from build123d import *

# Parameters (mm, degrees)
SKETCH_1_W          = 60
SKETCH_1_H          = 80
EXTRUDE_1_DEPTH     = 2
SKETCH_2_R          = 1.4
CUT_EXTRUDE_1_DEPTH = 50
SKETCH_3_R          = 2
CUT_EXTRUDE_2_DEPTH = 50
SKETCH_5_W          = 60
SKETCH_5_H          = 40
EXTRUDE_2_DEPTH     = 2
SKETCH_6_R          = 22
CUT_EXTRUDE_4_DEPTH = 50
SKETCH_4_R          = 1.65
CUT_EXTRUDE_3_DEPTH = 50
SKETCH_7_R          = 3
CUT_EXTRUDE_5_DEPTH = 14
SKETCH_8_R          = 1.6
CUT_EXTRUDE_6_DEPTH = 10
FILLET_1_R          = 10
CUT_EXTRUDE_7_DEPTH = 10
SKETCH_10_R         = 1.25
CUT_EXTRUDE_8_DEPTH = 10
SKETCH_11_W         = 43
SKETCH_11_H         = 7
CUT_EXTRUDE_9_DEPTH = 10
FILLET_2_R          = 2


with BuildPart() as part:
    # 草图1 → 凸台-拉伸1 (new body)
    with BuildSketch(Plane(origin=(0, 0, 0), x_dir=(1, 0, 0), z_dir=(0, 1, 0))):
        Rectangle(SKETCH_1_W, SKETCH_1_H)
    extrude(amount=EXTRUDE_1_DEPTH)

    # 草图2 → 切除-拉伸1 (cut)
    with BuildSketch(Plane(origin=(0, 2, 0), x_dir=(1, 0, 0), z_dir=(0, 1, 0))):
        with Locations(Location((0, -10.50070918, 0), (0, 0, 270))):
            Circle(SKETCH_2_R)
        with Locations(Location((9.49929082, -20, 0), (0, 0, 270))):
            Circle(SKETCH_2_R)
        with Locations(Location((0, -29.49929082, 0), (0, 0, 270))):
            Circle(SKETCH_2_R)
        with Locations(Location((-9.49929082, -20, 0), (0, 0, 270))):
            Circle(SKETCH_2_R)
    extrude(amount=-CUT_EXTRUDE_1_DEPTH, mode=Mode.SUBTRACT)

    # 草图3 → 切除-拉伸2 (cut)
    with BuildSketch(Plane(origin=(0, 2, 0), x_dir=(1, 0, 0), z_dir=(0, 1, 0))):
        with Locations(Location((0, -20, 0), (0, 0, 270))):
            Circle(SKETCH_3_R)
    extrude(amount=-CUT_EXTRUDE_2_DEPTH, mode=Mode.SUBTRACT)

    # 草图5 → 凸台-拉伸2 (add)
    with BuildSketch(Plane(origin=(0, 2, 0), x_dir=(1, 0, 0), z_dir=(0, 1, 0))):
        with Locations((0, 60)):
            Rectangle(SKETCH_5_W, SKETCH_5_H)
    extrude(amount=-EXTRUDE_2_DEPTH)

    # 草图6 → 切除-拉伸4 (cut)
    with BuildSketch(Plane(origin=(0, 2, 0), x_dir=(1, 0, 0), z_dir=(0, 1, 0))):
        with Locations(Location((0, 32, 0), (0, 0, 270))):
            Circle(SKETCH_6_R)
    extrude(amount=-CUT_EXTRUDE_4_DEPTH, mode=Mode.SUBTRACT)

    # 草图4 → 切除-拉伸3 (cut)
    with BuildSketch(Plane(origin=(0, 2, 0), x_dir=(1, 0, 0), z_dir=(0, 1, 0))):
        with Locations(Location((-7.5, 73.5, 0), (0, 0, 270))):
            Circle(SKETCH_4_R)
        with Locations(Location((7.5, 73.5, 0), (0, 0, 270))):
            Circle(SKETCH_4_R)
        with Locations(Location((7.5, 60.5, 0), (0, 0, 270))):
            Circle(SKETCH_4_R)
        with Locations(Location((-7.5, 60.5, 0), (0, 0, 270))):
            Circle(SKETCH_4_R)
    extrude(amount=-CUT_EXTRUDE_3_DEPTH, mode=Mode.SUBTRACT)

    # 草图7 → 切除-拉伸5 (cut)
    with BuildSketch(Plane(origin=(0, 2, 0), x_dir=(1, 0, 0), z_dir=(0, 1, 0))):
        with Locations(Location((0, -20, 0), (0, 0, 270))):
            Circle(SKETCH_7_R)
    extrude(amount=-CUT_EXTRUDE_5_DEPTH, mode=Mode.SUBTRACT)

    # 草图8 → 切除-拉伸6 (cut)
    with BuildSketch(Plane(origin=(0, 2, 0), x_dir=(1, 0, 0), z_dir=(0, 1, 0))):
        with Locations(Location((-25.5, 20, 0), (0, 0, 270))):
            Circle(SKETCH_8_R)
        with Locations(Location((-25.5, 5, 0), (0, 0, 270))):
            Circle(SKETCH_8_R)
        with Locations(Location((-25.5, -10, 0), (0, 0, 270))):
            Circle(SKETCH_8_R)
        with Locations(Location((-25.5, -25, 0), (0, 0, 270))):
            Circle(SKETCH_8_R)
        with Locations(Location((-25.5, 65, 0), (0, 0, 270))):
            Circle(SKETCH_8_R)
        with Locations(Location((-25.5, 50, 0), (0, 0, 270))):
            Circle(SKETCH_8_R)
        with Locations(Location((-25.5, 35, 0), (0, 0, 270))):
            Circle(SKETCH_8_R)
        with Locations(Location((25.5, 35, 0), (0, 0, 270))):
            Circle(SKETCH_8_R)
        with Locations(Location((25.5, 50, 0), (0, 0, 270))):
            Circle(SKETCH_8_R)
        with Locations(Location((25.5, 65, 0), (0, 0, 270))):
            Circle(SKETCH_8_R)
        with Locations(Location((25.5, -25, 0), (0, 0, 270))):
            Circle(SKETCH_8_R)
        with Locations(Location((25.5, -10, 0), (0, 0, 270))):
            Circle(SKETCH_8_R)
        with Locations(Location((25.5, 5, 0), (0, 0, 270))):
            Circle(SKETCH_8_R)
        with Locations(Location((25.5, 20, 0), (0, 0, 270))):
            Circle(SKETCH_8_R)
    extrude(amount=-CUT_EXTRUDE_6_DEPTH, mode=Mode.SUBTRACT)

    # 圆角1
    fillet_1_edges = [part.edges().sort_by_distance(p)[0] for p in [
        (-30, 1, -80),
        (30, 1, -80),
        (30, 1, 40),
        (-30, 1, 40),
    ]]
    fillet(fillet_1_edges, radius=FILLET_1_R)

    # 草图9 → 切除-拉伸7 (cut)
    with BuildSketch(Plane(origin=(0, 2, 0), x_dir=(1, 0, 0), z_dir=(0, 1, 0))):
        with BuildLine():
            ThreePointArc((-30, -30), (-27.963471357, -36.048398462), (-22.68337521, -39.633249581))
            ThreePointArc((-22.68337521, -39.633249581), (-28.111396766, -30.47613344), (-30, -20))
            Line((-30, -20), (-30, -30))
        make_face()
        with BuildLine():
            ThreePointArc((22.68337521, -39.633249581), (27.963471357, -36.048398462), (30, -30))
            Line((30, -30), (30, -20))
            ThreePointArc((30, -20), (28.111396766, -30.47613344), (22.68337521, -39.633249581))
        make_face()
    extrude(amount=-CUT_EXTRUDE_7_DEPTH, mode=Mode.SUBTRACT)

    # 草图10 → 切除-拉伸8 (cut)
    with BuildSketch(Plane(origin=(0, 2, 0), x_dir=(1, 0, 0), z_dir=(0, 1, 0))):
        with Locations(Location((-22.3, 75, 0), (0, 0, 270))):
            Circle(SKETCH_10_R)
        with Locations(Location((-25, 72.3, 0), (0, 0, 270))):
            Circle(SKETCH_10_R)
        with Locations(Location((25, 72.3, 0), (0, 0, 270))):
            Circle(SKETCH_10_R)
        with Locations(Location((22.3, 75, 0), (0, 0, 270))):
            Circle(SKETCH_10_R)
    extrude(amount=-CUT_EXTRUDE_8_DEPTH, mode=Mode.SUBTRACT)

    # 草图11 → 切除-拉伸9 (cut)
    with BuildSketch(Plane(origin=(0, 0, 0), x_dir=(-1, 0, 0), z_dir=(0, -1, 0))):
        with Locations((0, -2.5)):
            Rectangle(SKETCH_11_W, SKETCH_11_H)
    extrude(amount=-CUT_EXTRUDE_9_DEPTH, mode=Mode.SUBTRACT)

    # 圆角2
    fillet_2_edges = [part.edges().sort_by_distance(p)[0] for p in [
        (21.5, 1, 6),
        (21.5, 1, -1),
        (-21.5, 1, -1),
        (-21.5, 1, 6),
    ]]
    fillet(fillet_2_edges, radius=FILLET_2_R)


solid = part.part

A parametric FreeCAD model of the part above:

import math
import FreeCAD as App
import Part
import Sketcher
from FreeCAD import Vector
Q = App.Units.Quantity


def edges_at(feature, points):
    """Names of the edges that pass closest to the given points."""
    edges = feature.Shape.Edges
    near = lambda p: min(range(len(edges)), key=lambda i: edges[i].distToShape(Part.Vertex(*p))[0])
    return sorted({f"Edge{near(p) + 1}" for p in points})


def add_polygon(sketch, points):
    """Adds a closed chain of lines whose ends are joined by coincident constraints."""
    first, n = sketch.GeometryCount, len(points)
    for a, b in zip(points, points[1:] + points[:1]):
        sketch.addGeometry(Part.LineSegment(App.Vector(*a, 0), App.Vector(*b, 0)), False)
    for i in range(n):
        sketch.addConstraint(Sketcher.Constraint("Coincident", first + i, 2, first + (i + 1) % n, 1))

doc = App.newDocument("Part")
params = doc.addObject("Spreadsheet::Sheet", "Params")
for row, (alias, value) in enumerate([
    ("sketch1_width", "60 mm"),
    ("sketch1_height", "80 mm"),
    ("pad1_length", "2 mm"),
    ("sketch2_diameter", "2.8 mm"),
    ("pocket1_length", "50 mm"),
    ("sketch3_diameter", "4 mm"),
    ("pocket2_length", "50 mm"),
    ("sketch4_width", "60 mm"),
    ("sketch4_height", "40 mm"),
    ("pad2_length", "2 mm"),
    ("sketch5_diameter", "44 mm"),
    ("pocket3_length", "50 mm"),
    ("sketch6_diameter", "3.3 mm"),
    ("pocket4_length", "50 mm"),
    ("sketch7_diameter", "6 mm"),
    ("pocket5_length", "14 mm"),
    ("sketch8_diameter", "3.2 mm"),
    ("pocket6_length", "10 mm"),
    ("fillet_radius", "10 mm"),
    ("sketch9_radius", "10 mm"),
    ("sketch9_radius2", "30 mm"),
    ("sketch9_height", "10 mm"),
    ("pocket7_length", "10 mm"),
    ("sketch10_diameter", "2.5 mm"),
    ("pocket8_length", "10 mm"),
    ("sketch11_width", "43 mm"),
    ("sketch11_height", "7 mm"),
    ("pocket9_length", "10 mm"),
    ("fillet2_radius", "2 mm"),
], start=1):
    params.set(f"A{row}", alias)
    params.set(f"B{row}", "=" + value)
    params.setAlias(f"B{row}", alias)

body = doc.addObject("PartDesign::Body", "Body")

# Sketch on XZ plane
sketch1 = body.newObject("Sketcher::SketchObject", "Sketch")
sketch1.AttachmentSupport = (doc.getObject("XZ_Plane"), [""])
sketch1.MapMode = "FlatFace"
add_polygon(sketch1, [(-30, -40), (-30, 40), (30, 40), (30, -40)])  # lines 0-3
sketch1.addConstraint(Sketcher.Constraint("Vertical", 0))
sketch1.addConstraint(Sketcher.Constraint("Horizontal", 1))
sketch1.addConstraint(Sketcher.Constraint("Vertical", 2))
sketch1.addConstraint(Sketcher.Constraint("Horizontal", 3))
sketch1.addConstraint(Sketcher.Constraint("Symmetric", 0, 2, 2, 2, -1, 1))
sketch1.addConstraint(Sketcher.Constraint("DistanceX", 1, 1, 1, 2, Q("60 mm")))
sketch1.addConstraint(Sketcher.Constraint("DistanceY", 0, 1, 0, 2, Q("80 mm")))
sketch1.setExpression("Constraints[9]", "Params.sketch1_width")
sketch1.setExpression("Constraints[10]", "Params.sketch1_height")
pad1 = body.newObject("PartDesign::Pad", "Pad")
pad1.Profile = sketch1
pad1.setExpression("Length", "Params.pad1_length")
pad1.Reversed = True

# Sketch on XZ plane
sketch2 = body.newObject("Sketcher::SketchObject", "Sketch001")
sketch2.AttachmentSupport = (doc.getObject("XZ_Plane"), [""])
sketch2.MapMode = "FlatFace"
sketch2.AttachmentOffset = App.Placement(Vector(0, 0, -2), App.Rotation())
sketch2.addGeometry(Part.Circle(Vector(0, 10.500709, 0), Vector(0, 0, 1), 1.4), False)
sketch2.addGeometry(Part.Circle(Vector(9.499291, 20, 0), Vector(0, 0, 1), 1.4), False)
sketch2.addGeometry(Part.Circle(Vector(0, 29.499291, 0), Vector(0, 0, 1), 1.4), False)
sketch2.addGeometry(Part.Circle(Vector(-9.499291, 20, 0), Vector(0, 0, 1), 1.4), False)
sketch2.addConstraint(Sketcher.Constraint("Equal", 0, 1))
sketch2.addConstraint(Sketcher.Constraint("Equal", 1, 2))
sketch2.addConstraint(Sketcher.Constraint("Equal", 2, 3))
sketch2.addConstraint(Sketcher.Constraint("Symmetric", 1, 3, 3, 3, -2))
sketch2.addConstraint(Sketcher.Constraint("PointOnObject", 0, 3, -2))
sketch2.addConstraint(Sketcher.Constraint("PointOnObject", 2, 3, -2))
sketch2.addConstraint(Sketcher.Constraint("Diameter", 0, Q("2.8 mm")))
sketch2.addConstraint(Sketcher.Constraint("DistanceY", -1, 1, 1, 3, Q("20 mm")))
sketch2.addConstraint(Sketcher.Constraint("DistanceY", -1, 1, 0, 3, Q("10.500709 mm")))
sketch2.addConstraint(Sketcher.Constraint("DistanceX", -1, 1, 1, 3, Q("9.499291 mm")))
sketch2.addConstraint(Sketcher.Constraint("DistanceY", -1, 1, 2, 3, Q("29.499291 mm")))
sketch2.setExpression("Constraints[6]", "Params.sketch2_diameter")
pocket1 = body.newObject("PartDesign::Pocket", "Pocket")
pocket1.Profile = sketch2
pocket1.setExpression("Length", "Params.pocket1_length")
pocket1.Reversed = True

# Sketch on XZ plane
sketch3 = body.newObject("Sketcher::SketchObject", "Sketch002")
sketch3.AttachmentSupport = (doc.getObject("XZ_Plane"), [""])
sketch3.MapMode = "FlatFace"
sketch3.AttachmentOffset = App.Placement(Vector(0, 0, -2), App.Rotation())
sketch3.addGeometry(Part.Circle(Vector(0, 20, 0), Vector(0, 0, 1), 2), False)
sketch3.addConstraint(Sketcher.Constraint("PointOnObject", 0, 3, -2))
sketch3.addConstraint(Sketcher.Constraint("Diameter", 0, Q("4 mm")))
sketch3.addConstraint(Sketcher.Constraint("DistanceY", -1, 1, 0, 3, Q("20 mm")))
sketch3.setExpression("Constraints[1]", "Params.sketch3_diameter")
pocket2 = body.newObject("PartDesign::Pocket", "Pocket001")
pocket2.Profile = sketch3
pocket2.setExpression("Length", "Params.pocket2_length")
pocket2.Reversed = True

# Sketch on XZ plane
sketch4 = body.newObject("Sketcher::SketchObject", "Sketch003")
sketch4.AttachmentSupport = (doc.getObject("XZ_Plane"), [""])
sketch4.MapMode = "FlatFace"
sketch4.AttachmentOffset = App.Placement(Vector(0, 0, -2), App.Rotation())
add_polygon(sketch4, [(-30, -80), (-30, -40), (30, -40), (30, -80)])  # lines 0-3
sketch4.addConstraint(Sketcher.Constraint("Vertical", 0))
sketch4.addConstraint(Sketcher.Constraint("Horizontal", 1))
sketch4.addConstraint(Sketcher.Constraint("Vertical", 2))
sketch4.addConstraint(Sketcher.Constraint("Horizontal", 3))
sketch4.addConstraint(Sketcher.Constraint("DistanceX", 1, 1, 1, 2, Q("60 mm")))
sketch4.addConstraint(Sketcher.Constraint("DistanceY", 0, 1, 0, 2, Q("40 mm")))
sketch4.addConstraint(Sketcher.Constraint("DistanceX", 0, 2, -1, 1, Q("30 mm")))
sketch4.addConstraint(Sketcher.Constraint("DistanceY", 0, 2, -1, 1, Q("40 mm")))
sketch4.setExpression("Constraints[8]", "Params.sketch4_width")
sketch4.setExpression("Constraints[9]", "Params.sketch4_height")
pad2 = body.newObject("PartDesign::Pad", "Pad001")
pad2.Profile = sketch4
pad2.setExpression("Length", "Params.pad2_length")

# Sketch on XZ plane
sketch5 = body.newObject("Sketcher::SketchObject", "Sketch004")
sketch5.AttachmentSupport = (doc.getObject("XZ_Plane"), [""])
sketch5.MapMode = "FlatFace"
sketch5.AttachmentOffset = App.Placement(Vector(0, 0, -2), App.Rotation())
sketch5.addGeometry(Part.Circle(Vector(0, -32, 0), Vector(0, 0, 1), 22), False)
sketch5.addConstraint(Sketcher.Constraint("PointOnObject", 0, 3, -2))
sketch5.addConstraint(Sketcher.Constraint("Diameter", 0, Q("44 mm")))
sketch5.addConstraint(Sketcher.Constraint("DistanceY", 0, 3, -1, 1, Q("32 mm")))
sketch5.setExpression("Constraints[1]", "Params.sketch5_diameter")
pocket3 = body.newObject("PartDesign::Pocket", "Pocket002")
pocket3.Profile = sketch5
pocket3.setExpression("Length", "Params.pocket3_length")
pocket3.Reversed = True

# Sketch on XZ plane
sketch6 = body.newObject("Sketcher::SketchObject", "Sketch005")
sketch6.AttachmentSupport = (doc.getObject("XZ_Plane"), [""])
sketch6.MapMode = "FlatFace"
sketch6.AttachmentOffset = App.Placement(Vector(0, 0, -2), App.Rotation())
sketch6.addGeometry(Part.Circle(Vector(-7.5, -73.5, 0), Vector(0, 0, 1), 1.65), False)
sketch6.addGeometry(Part.Circle(Vector(7.5, -73.5, 0), Vector(0, 0, 1), 1.65), False)
sketch6.addGeometry(Part.Circle(Vector(7.5, -60.5, 0), Vector(0, 0, 1), 1.65), False)
sketch6.addGeometry(Part.Circle(Vector(-7.5, -60.5, 0), Vector(0, 0, 1), 1.65), False)
sketch6.addConstraint(Sketcher.Constraint("Equal", 0, 1))
sketch6.addConstraint(Sketcher.Constraint("Equal", 1, 2))
sketch6.addConstraint(Sketcher.Constraint("Equal", 2, 3))
sketch6.addConstraint(Sketcher.Constraint("Symmetric", 0, 3, 1, 3, -2))
sketch6.addConstraint(Sketcher.Constraint("Symmetric", 2, 3, 3, 3, -2))
sketch6.addConstraint(Sketcher.Constraint("Vertical", 1, 3, 2, 3))
sketch6.addConstraint(Sketcher.Constraint("Diameter", 0, Q("3.3 mm")))
sketch6.addConstraint(Sketcher.Constraint("DistanceX", 0, 3, 1, 3, Q("15 mm")))
sketch6.addConstraint(Sketcher.Constraint("DistanceY", 1, 3, 2, 3, Q("13 mm")))
sketch6.addConstraint(Sketcher.Constraint("DistanceY", 0, 3, -1, 1, Q("73.5 mm")))
sketch6.setExpression("Constraints[6]", "Params.sketch6_diameter")
pocket4 = body.newObject("PartDesign::Pocket", "Pocket003")
pocket4.Profile = sketch6
pocket4.setExpression("Length", "Params.pocket4_length")
pocket4.Reversed = True

# Sketch on XZ plane
sketch7 = body.newObject("Sketcher::SketchObject", "Sketch006")
sketch7.AttachmentSupport = (doc.getObject("XZ_Plane"), [""])
sketch7.MapMode = "FlatFace"
sketch7.AttachmentOffset = App.Placement(Vector(0, 0, -2), App.Rotation())
sketch7.addGeometry(Part.Circle(Vector(0, 20, 0), Vector(0, 0, 1), 3), False)
sketch7.addConstraint(Sketcher.Constraint("PointOnObject", 0, 3, -2))
sketch7.addConstraint(Sketcher.Constraint("Diameter", 0, Q("6 mm")))
sketch7.addConstraint(Sketcher.Constraint("DistanceY", -1, 1, 0, 3, Q("20 mm")))
sketch7.setExpression("Constraints[1]", "Params.sketch7_diameter")
pocket5 = body.newObject("PartDesign::Pocket", "Pocket004")
pocket5.Profile = sketch7
pocket5.setExpression("Length", "Params.pocket5_length")
pocket5.Reversed = True

# Sketch on XZ plane
sketch8 = body.newObject("Sketcher::SketchObject", "Sketch007")
sketch8.AttachmentSupport = (doc.getObject("XZ_Plane"), [""])
sketch8.MapMode = "FlatFace"
sketch8.AttachmentOffset = App.Placement(Vector(0, 0, -2), App.Rotation())
sketch8.addGeometry(Part.Circle(Vector(-25.5, -20, 0), Vector(0, 0, 1), 1.6), False)
sketch8.addGeometry(Part.Circle(Vector(-25.5, -5, 0), Vector(0, 0, 1), 1.6), False)
sketch8.addGeometry(Part.Circle(Vector(-25.5, 10, 0), Vector(0, 0, 1), 1.6), False)
sketch8.addGeometry(Part.Circle(Vector(-25.5, 25, 0), Vector(0, 0, 1), 1.6), False)
sketch8.addGeometry(Part.Circle(Vector(-25.5, -65, 0), Vector(0, 0, 1), 1.6), False)
sketch8.addGeometry(Part.Circle(Vector(-25.5, -50, 0), Vector(0, 0, 1), 1.6), False)
sketch8.addGeometry(Part.Circle(Vector(-25.5, -35, 0), Vector(0, 0, 1), 1.6), False)
sketch8.addGeometry(Part.Circle(Vector(25.5, -35, 0), Vector(0, 0, 1), 1.6), False)
sketch8.addGeometry(Part.Circle(Vector(25.5, -50, 0), Vector(0, 0, 1), 1.6), False)
sketch8.addGeometry(Part.Circle(Vector(25.5, -65, 0), Vector(0, 0, 1), 1.6), False)
sketch8.addGeometry(Part.Circle(Vector(25.5, 25, 0), Vector(0, 0, 1), 1.6), False)
sketch8.addGeometry(Part.Circle(Vector(25.5, 10, 0), Vector(0, 0, 1), 1.6), False)
sketch8.addGeometry(Part.Circle(Vector(25.5, -5, 0), Vector(0, 0, 1), 1.6), False)
sketch8.addGeometry(Part.Circle(Vector(25.5, -20, 0), Vector(0, 0, 1), 1.6), False)
sketch8.addConstraint(Sketcher.Constraint("Equal", 0, 1))
sketch8.addConstraint(Sketcher.Constraint("Equal", 1, 2))
sketch8.addConstraint(Sketcher.Constraint("Equal", 2, 3))
sketch8.addConstraint(Sketcher.Constraint("Equal", 3, 4))
sketch8.addConstraint(Sketcher.Constraint("Equal", 4, 5))
sketch8.addConstraint(Sketcher.Constraint("Equal", 5, 6))
sketch8.addConstraint(Sketcher.Constraint("Equal", 6, 7))
sketch8.addConstraint(Sketcher.Constraint("Equal", 7, 8))
sketch8.addConstraint(Sketcher.Constraint("Equal", 8, 9))
sketch8.addConstraint(Sketcher.Constraint("Equal", 9, 10))
sketch8.addConstraint(Sketcher.Constraint("Equal", 10, 11))
sketch8.addConstraint(Sketcher.Constraint("Equal", 11, 12))
sketch8.addConstraint(Sketcher.Constraint("Equal", 12, 13))
sketch8.addConstraint(Sketcher.Constraint("Symmetric", 6, 3, 7, 3, -2))
sketch8.addConstraint(Sketcher.Constraint("Symmetric", 5, 3, 8, 3, -2))
sketch8.addConstraint(Sketcher.Constraint("Symmetric", 4, 3, 9, 3, -2))
sketch8.addConstraint(Sketcher.Constraint("Symmetric", 3, 3, 10, 3, -2))
sketch8.addConstraint(Sketcher.Constraint("Symmetric", 2, 3, 11, 3, -2))
sketch8.addConstraint(Sketcher.Constraint("Symmetric", 1, 3, 12, 3, -2))
sketch8.addConstraint(Sketcher.Constraint("Symmetric", 0, 3, 13, 3, -2))
sketch8.addConstraint(Sketcher.Constraint("Vertical", 0, 3, 1, 3))
sketch8.addConstraint(Sketcher.Constraint("Vertical", 1, 3, 2, 3))
sketch8.addConstraint(Sketcher.Constraint("Vertical", 2, 3, 3, 3))
sketch8.addConstraint(Sketcher.Constraint("Vertical", 3, 3, 4, 3))
sketch8.addConstraint(Sketcher.Constraint("Vertical", 4, 3, 5, 3))
sketch8.addConstraint(Sketcher.Constraint("Vertical", 5, 3, 6, 3))
sketch8.addConstraint(Sketcher.Constraint("Diameter", 0, Q("3.2 mm")))
sketch8.addConstraint(Sketcher.Constraint("DistanceY", 0, 3, -1, 1, Q("20 mm")))
sketch8.addConstraint(Sketcher.Constraint("DistanceY", 1, 3, -1, 1, Q("5 mm")))
sketch8.addConstraint(Sketcher.Constraint("DistanceY", -1, 1, 2, 3, Q("10 mm")))
sketch8.addConstraint(Sketcher.Constraint("DistanceY", -1, 1, 3, 3, Q("25 mm")))
sketch8.addConstraint(Sketcher.Constraint("DistanceY", 4, 3, -1, 1, Q("65 mm")))
sketch8.addConstraint(Sketcher.Constraint("DistanceY", 5, 3, -1, 1, Q("50 mm")))
sketch8.addConstraint(Sketcher.Constraint("DistanceY", 6, 3, -1, 1, Q("35 mm")))
sketch8.addConstraint(Sketcher.Constraint("DistanceX", 6, 3, 7, 3, Q("51 mm")))
sketch8.setExpression("Constraints[26]", "Params.sketch8_diameter")
pocket6 = body.newObject("PartDesign::Pocket", "Pocket005")
pocket6.Profile = sketch8
pocket6.setExpression("Length", "Params.pocket6_length")
pocket6.Reversed = True
doc.recompute()

fillet = body.newObject("PartDesign::Fillet", "Fillet")
fillet.Base = (pocket6, edges_at(pocket6, [
    (-30, 1, -80),
    (30, 1, -80),
    (30, 1, 40),
    (-30, 1, 40),
]))
fillet.setExpression("Radius", "Params.fillet_radius")

# Sketch on XZ plane
sketch9 = body.newObject("Sketcher::SketchObject", "Sketch008")
sketch9.AttachmentSupport = (doc.getObject("XZ_Plane"), [""])
sketch9.MapMode = "FlatFace"
sketch9.AttachmentOffset = App.Placement(Vector(0, 0, -2), App.Rotation())
sketch9.addGeometry(Part.ArcOfCircle(Part.Circle(Vector(-20, 30, 0), Vector(0, 0, 1), 10), math.radians(105.565364), math.radians(180)), False)
sketch9.addGeometry(Part.ArcOfCircle(Part.Circle(Vector(0, 20, 0), Vector(0, 0, 1), 30), math.radians(139.122673), math.radians(180)), False)
sketch9.addGeometry(Part.LineSegment(Vector(-30, 20, 0), Vector(-30, 30, 0)), False)
sketch9.addGeometry(Part.ArcOfCircle(Part.Circle(Vector(20, 30, 0), Vector(0, 0, 1), 10), math.radians(0), math.radians(74.434636)), False)
sketch9.addGeometry(Part.LineSegment(Vector(30, 30, 0), Vector(30, 20, 0)), False)
sketch9.addGeometry(Part.ArcOfCircle(Part.Circle(Vector(0, 20, 0), Vector(0, 0, 1), 30), math.radians(0), math.radians(40.877327)), False)
sketch9.addConstraint(Sketcher.Constraint("Coincident", 0, 1, 1, 1))
sketch9.addConstraint(Sketcher.Constraint("Tangent", 1, 2, 2, 1))
sketch9.addConstraint(Sketcher.Constraint("Tangent", 2, 2, 0, 2))
sketch9.addConstraint(Sketcher.Constraint("Tangent", 3, 1, 4, 1))
sketch9.addConstraint(Sketcher.Constraint("Tangent", 4, 2, 5, 1))
sketch9.addConstraint(Sketcher.Constraint("Coincident", 5, 2, 3, 2))
sketch9.addConstraint(Sketcher.Constraint("Vertical", 2))
sketch9.addConstraint(Sketcher.Constraint("Vertical", 4))
sketch9.addConstraint(Sketcher.Constraint("Coincident", 5, 3, 1, 3))
sketch9.addConstraint(Sketcher.Constraint("Equal", 0, 3))
sketch9.addConstraint(Sketcher.Constraint("Equal", 1, 5))
sketch9.addConstraint(Sketcher.Constraint("Symmetric", 0, 3, 3, 3, -2))
sketch9.addConstraint(Sketcher.Constraint("Radius", 0, Q("10 mm")))
sketch9.addConstraint(Sketcher.Constraint("Radius", 1, Q("30 mm")))
sketch9.addConstraint(Sketcher.Constraint("DistanceY", 2, 1, 2, 2, Q("10 mm")))
sketch9.addConstraint(Sketcher.Constraint("DistanceY", -1, 1, 0, 3, Q("30 mm")))
sketch9.setExpression("Constraints[12]", "Params.sketch9_radius")
sketch9.setExpression("Constraints[13]", "Params.sketch9_radius2")
sketch9.setExpression("Constraints[14]", "Params.sketch9_height")
pocket7 = body.newObject("PartDesign::Pocket", "Pocket006")
pocket7.Profile = sketch9
pocket7.setExpression("Length", "Params.pocket7_length")
pocket7.Reversed = True

# Sketch on XZ plane
sketch10 = body.newObject("Sketcher::SketchObject", "Sketch009")
sketch10.AttachmentSupport = (doc.getObject("XZ_Plane"), [""])
sketch10.MapMode = "FlatFace"
sketch10.AttachmentOffset = App.Placement(Vector(0, 0, -2), App.Rotation())
sketch10.addGeometry(Part.Circle(Vector(-22.3, -75, 0), Vector(0, 0, 1), 1.25), False)
sketch10.addGeometry(Part.Circle(Vector(-25, -72.3, 0), Vector(0, 0, 1), 1.25), False)
sketch10.addGeometry(Part.Circle(Vector(25, -72.3, 0), Vector(0, 0, 1), 1.25), False)
sketch10.addGeometry(Part.Circle(Vector(22.3, -75, 0), Vector(0, 0, 1), 1.25), False)
sketch10.addConstraint(Sketcher.Constraint("Equal", 0, 1))
sketch10.addConstraint(Sketcher.Constraint("Equal", 1, 2))
sketch10.addConstraint(Sketcher.Constraint("Equal", 2, 3))
sketch10.addConstraint(Sketcher.Constraint("Symmetric", 1, 3, 2, 3, -2))
sketch10.addConstraint(Sketcher.Constraint("Symmetric", 0, 3, 3, 3, -2))
sketch10.addConstraint(Sketcher.Constraint("Diameter", 0, Q("2.5 mm")))
sketch10.addConstraint(Sketcher.Constraint("DistanceY", 0, 3, -1, 1, Q("75 mm")))
sketch10.addConstraint(Sketcher.Constraint("DistanceX", 1, 3, -1, 1, Q("25 mm")))
sketch10.addConstraint(Sketcher.Constraint("DistanceX", 0, 3, -1, 1, Q("22.3 mm")))
sketch10.addConstraint(Sketcher.Constraint("DistanceY", 1, 3, -1, 1, Q("72.3 mm")))
sketch10.setExpression("Constraints[5]", "Params.sketch10_diameter")
pocket8 = body.newObject("PartDesign::Pocket", "Pocket007")
pocket8.Profile = sketch10
pocket8.setExpression("Length", "Params.pocket8_length")
pocket8.Reversed = True

# Sketch on XZ plane
sketch11 = body.newObject("Sketcher::SketchObject", "Sketch010")
sketch11.AttachmentSupport = (doc.getObject("XZ_Plane"), [""])
sketch11.MapMode = "FlatFace"
add_polygon(sketch11, [(21.5, -1), (21.5, 6), (-21.5, 6), (-21.5, -1)])  # lines 0-3
sketch11.addConstraint(Sketcher.Constraint("Vertical", 0))
sketch11.addConstraint(Sketcher.Constraint("Horizontal", 1))
sketch11.addConstraint(Sketcher.Constraint("Vertical", 2))
sketch11.addConstraint(Sketcher.Constraint("Horizontal", 3))
sketch11.addConstraint(Sketcher.Constraint("DistanceX", 1, 2, 1, 1, Q("43 mm")))
sketch11.addConstraint(Sketcher.Constraint("DistanceY", 0, 1, 0, 2, Q("7 mm")))
sketch11.addConstraint(Sketcher.Constraint("DistanceY", -1, 1, 0, 2, Q("6 mm")))
sketch11.addConstraint(Sketcher.Constraint("DistanceX", -1, 1, 0, 2, Q("21.5 mm")))
sketch11.setExpression("Constraints[8]", "Params.sketch11_width")
sketch11.setExpression("Constraints[9]", "Params.sketch11_height")
pocket9 = body.newObject("PartDesign::Pocket", "Pocket008")
pocket9.Profile = sketch11
pocket9.setExpression("Length", "Params.pocket9_length")
doc.recompute()

fillet2 = body.newObject("PartDesign::Fillet", "Fillet001")
fillet2.Base = (pocket9, edges_at(pocket9, [
    (21.5, 1, 6),
    (21.5, 1, -1),
    (-21.5, 1, -1),
    (-21.5, 1, 6),
]))
fillet2.setExpression("Radius", "Params.fillet2_radius")

doc.recompute()
